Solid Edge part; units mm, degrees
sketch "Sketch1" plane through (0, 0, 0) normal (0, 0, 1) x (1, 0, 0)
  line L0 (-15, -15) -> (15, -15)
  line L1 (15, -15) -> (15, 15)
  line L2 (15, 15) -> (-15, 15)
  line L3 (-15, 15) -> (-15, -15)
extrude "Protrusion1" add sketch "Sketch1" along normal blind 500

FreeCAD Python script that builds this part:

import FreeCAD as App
import Part
import Sketcher

V = App.Vector


def add_polygon(sketch, points):
    """Adds a closed chain of lines whose ends are joined by coincident constraints."""
    first, n = sketch.GeometryCount, len(points)
    for a, b in zip(points, points[1:] + points[:1]):
        sketch.addGeometry(Part.LineSegment(App.Vector(*a, 0), App.Vector(*b, 0)), False)
    for i in range(n):
        sketch.addConstraint(Sketcher.Constraint("Coincident", first + i, 2, first + (i + 1) % n, 1))

doc = App.newDocument("Part")
body = doc.addObject("PartDesign::Body", "Body")

sketch1 = body.newObject("Sketcher::SketchObject", "Sketch")
sketch1.AttachmentSupport = (doc.getObject("XY_Plane"), [""])
sketch1.MapMode = "FlatFace"
add_polygon(sketch1, [(-15, 15), (-15, -15), (15, -15), (15, 15)])
sketch1.addConstraint([
    Sketcher.Constraint("Vertical", 0),
    Sketcher.Constraint("Horizontal", 1),
    Sketcher.Constraint("Vertical", 2),
    Sketcher.Constraint("Horizontal", 3),
    Sketcher.Constraint("Symmetric", 0, 2, 2, 2, -1, 1),
    Sketcher.Constraint("Equal", 3, 0),
    Sketcher.Constraint("DistanceX", 1, 1, 1, 2, 30.0),
])
pad1 = body.newObject("PartDesign::Pad", "Pad")
pad1.Profile = sketch1
pad1.Length = 500

doc.recompute()
